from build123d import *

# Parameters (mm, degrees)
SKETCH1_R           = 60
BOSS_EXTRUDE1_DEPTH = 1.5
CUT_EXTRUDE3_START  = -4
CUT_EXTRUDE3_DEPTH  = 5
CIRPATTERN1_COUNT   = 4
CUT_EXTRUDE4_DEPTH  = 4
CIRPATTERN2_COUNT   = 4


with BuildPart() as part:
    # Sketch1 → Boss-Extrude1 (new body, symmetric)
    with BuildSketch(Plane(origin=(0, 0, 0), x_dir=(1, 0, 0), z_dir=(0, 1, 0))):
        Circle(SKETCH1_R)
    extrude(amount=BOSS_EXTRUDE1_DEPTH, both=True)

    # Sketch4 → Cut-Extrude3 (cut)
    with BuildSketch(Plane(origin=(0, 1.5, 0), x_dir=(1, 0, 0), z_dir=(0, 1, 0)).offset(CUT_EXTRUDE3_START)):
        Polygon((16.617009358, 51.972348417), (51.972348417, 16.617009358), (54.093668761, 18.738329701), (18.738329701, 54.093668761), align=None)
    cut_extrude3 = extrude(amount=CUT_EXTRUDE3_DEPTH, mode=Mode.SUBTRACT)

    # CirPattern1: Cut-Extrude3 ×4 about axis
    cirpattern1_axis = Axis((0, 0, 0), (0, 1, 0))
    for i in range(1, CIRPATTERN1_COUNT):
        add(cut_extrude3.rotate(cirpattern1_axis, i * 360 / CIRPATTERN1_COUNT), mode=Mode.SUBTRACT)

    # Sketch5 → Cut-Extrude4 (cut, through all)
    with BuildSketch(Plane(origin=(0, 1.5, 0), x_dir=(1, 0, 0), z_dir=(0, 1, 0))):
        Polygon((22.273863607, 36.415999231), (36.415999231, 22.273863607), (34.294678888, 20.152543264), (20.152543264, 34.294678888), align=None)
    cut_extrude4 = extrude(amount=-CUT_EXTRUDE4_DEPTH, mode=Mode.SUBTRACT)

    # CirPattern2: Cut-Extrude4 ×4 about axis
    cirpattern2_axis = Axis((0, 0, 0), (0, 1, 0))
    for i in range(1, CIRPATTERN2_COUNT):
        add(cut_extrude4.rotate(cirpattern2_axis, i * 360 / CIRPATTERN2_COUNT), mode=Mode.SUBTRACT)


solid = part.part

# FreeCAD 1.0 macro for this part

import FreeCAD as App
import Part
import Sketcher
from FreeCAD import Vector
Q = App.Units.Quantity

doc = App.newDocument("Part")
params = doc.addObject("Spreadsheet::Sheet", "Params")
for row, (alias, value) in enumerate([
    ("sketch1_diameter", "120 mm"),
    ("pad1_length", "3 mm"),
    ("sketch2_length", "50 mm"),
    ("sketch2_length2", "3 mm"),
    ("pocket1_length", "5 mm"),
    ("sketch3_length", "20 mm"),
    ("sketch3_length2", "3 mm"),
], start=1):
    params.set(f"A{row}", alias)
    params.set(f"B{row}", "=" + value)
    params.setAlias(f"B{row}", alias)

body = doc.addObject("PartDesign::Body", "Body")

sketch1 = body.newObject("Sketcher::SketchObject", "Sketch")
sketch1.AttachmentSupport = (doc.getObject("XZ_Plane"), [""])
sketch1.MapMode = "FlatFace"
sketch1.addGeometry(Part.Circle(Vector(0, 0, 0), Vector(0, 0, 1), 60), False)
sketch1.addConstraint([
    Sketcher.Constraint("Coincident", 0, 3, -1, 1),
    Sketcher.Constraint("Diameter", 0, 120.0),
])
sketch1.setExpression("Constraints[1]", "Params.sketch1_diameter")
pad1 = body.newObject("PartDesign::Pad", "Pad")
pad1.Profile = sketch1
pad1.setExpression("Length", "Params.pad1_length")
pad1.Midplane = True

sketch2 = body.newObject("Sketcher::SketchObject", "Sketch001")
sketch2.AttachmentSupport = (doc.getObject("XZ_Plane"), [""])
sketch2.MapMode = "FlatFace"
sketch2.AttachmentOffset = App.Placement(Vector(0, 0, 2.5), App.Rotation())
sketch2.addGeometry([
    Part.LineSegment(Vector(16.6, -52, 0), Vector(52, -16.6, 0)),
    Part.LineSegment(Vector(52, -16.6, 0), Vector(54.1, -18.7, 0)),
    Part.LineSegment(Vector(54.1, -18.7, 0), Vector(18.7, -54.1, 0)),
    Part.LineSegment(Vector(18.7, -54.1, 0), Vector(16.6, -52, 0)),
], False)
sketch2.addConstraint([
    Sketcher.Constraint("Coincident", 0, 2, 1, 1),
    Sketcher.Constraint("Coincident", 1, 2, 2, 1),
    Sketcher.Constraint("Coincident", 2, 2, 3, 1),
    Sketcher.Constraint("Coincident", 3, 2, 0, 1),
    Sketcher.Constraint("Perpendicular", 0, 1),
    Sketcher.Constraint("Perpendicular", 1, 2),
    Sketcher.Constraint("Perpendicular", 2, 3),
    Sketcher.Constraint("Angle", 0, Q("45 deg")),
    Sketcher.Constraint("Distance", 0, 50.0),
    Sketcher.Constraint("Distance", 1, 3.0),
    Sketcher.Constraint("DistanceX", -1, 1, 0, 2, 51.972348),
    Sketcher.Constraint("DistanceY", 0, 2, -1, 1, 16.617009),
])
sketch2.setExpression("Constraints[8]", "Params.sketch2_length")
sketch2.setExpression("Constraints[9]", "Params.sketch2_length2")
pocket1 = body.newObject("PartDesign::Pocket", "Pocket")
pocket1.Profile = sketch2
pocket1.setExpression("Length", "Params.pocket1_length")
doc.recompute()

polarpattern = body.newObject("PartDesign::PolarPattern", "PolarPattern")
polarpattern.Originals = [pocket1]
polarpattern.Axis = (doc.getObject("Y_Axis"), [""])
polarpattern.Angle = 360
polarpattern.Occurrences = 4
body.Tip = polarpattern

sketch3 = body.newObject("Sketcher::SketchObject", "Sketch002")
sketch3.AttachmentSupport = (doc.getObject("XZ_Plane"), [""])
sketch3.MapMode = "FlatFace"
sketch3.AttachmentOffset = App.Placement(Vector(0, 0, -1.5), App.Rotation())
sketch3.addGeometry([
    Part.LineSegment(Vector(36.4, -22.3, 0), Vector(22.3, -36.4, 0)),
    Part.LineSegment(Vector(22.3, -36.4, 0), Vector(20.2, -34.3, 0)),
    Part.LineSegment(Vector(20.2, -34.3, 0), Vector(34.3, -20.2, 0)),
    Part.LineSegment(Vector(34.3, -20.2, 0), Vector(36.4, -22.3, 0)),
], False)
sketch3.addConstraint([
    Sketcher.Constraint("Coincident", 0, 2, 1, 1),
    Sketcher.Constraint("Coincident", 1, 2, 2, 1),
    Sketcher.Constraint("Coincident", 2, 2, 3, 1),
    Sketcher.Constraint("Coincident", 3, 2, 0, 1),
    Sketcher.Constraint("Perpendicular", 0, 1),
    Sketcher.Constraint("Perpendicular", 1, 2),
    Sketcher.Constraint("Perpendicular", 2, 3),
    Sketcher.Constraint("Angle", 0, Q("-135 deg")),
    Sketcher.Constraint("Distance", 0, 20.0),
    Sketcher.Constraint("Distance", 1, 3.0),
    Sketcher.Constraint("DistanceY", 0, 2, -1, 1, 36.415999),
    Sketcher.Constraint("DistanceX", -1, 1, 3, 2, 36.415999),
])
sketch3.setExpression("Constraints[8]", "Params.sketch3_length")
sketch3.setExpression("Constraints[9]", "Params.sketch3_length2")
pocket2 = body.newObject("PartDesign::Pocket", "Pocket001")
pocket2.Profile = sketch3
pocket2.Type = "ThroughAll"
pocket2.Reversed = True
doc.recompute()

polarpattern2 = body.newObject("PartDesign::PolarPattern", "PolarPattern001")
polarpattern2.Originals = [pocket2]
polarpattern2.Axis = (doc.getObject("Y_Axis"), [""])
polarpattern2.Angle = 360
polarpattern2.Occurrences = 4
body.Tip = polarpattern2

doc.recompute()
